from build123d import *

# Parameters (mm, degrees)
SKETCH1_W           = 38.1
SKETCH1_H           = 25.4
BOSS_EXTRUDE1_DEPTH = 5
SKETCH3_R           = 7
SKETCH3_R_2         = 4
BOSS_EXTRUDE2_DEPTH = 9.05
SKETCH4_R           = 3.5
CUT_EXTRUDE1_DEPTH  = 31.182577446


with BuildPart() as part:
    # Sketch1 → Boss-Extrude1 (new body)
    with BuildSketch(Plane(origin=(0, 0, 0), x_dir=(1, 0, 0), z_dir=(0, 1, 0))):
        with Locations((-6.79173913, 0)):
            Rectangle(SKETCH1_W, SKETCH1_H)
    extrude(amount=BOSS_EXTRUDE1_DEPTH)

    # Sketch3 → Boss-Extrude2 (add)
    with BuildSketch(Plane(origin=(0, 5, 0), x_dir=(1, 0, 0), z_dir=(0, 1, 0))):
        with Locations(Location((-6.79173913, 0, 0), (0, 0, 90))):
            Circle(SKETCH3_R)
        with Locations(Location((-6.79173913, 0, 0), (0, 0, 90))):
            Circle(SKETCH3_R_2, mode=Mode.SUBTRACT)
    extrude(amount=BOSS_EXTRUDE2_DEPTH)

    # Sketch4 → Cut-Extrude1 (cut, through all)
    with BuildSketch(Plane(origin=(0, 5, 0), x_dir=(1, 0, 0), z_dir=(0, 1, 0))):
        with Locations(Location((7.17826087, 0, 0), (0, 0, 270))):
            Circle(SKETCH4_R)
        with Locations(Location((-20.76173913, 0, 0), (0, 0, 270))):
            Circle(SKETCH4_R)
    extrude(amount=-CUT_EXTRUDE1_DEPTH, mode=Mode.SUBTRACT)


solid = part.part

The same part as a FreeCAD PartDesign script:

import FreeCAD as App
import Part
import Sketcher

V = App.Vector


def add_polygon(sketch, points):
    """Adds a closed chain of lines whose ends are joined by coincident constraints."""
    first, n = sketch.GeometryCount, len(points)
    for a, b in zip(points, points[1:] + points[:1]):
        sketch.addGeometry(Part.LineSegment(App.Vector(*a, 0), App.Vector(*b, 0)), False)
    for i in range(n):
        sketch.addConstraint(Sketcher.Constraint("Coincident", first + i, 2, first + (i + 1) % n, 1))

doc = App.newDocument("Part")
body = doc.addObject("PartDesign::Body", "Body")

sketch1 = doc.addObject("Sketcher::SketchObject", "Sketch")
body.addObject(sketch1)
sketch1.AttachmentSupport = (doc.XZ_Plane, [""])
sketch1.MapMode = "FlatFace"
add_polygon(sketch1, [(-25.841739, -12.7), (-25.841739, 12.7), (12.258261, 12.7), (12.258261, -12.7)])
sketch1.addConstraint(Sketcher.Constraint("Vertical", 0))
sketch1.addConstraint(Sketcher.Constraint("Horizontal", 1))
sketch1.addConstraint(Sketcher.Constraint("Vertical", 2))
sketch1.addConstraint(Sketcher.Constraint("Horizontal", 3))
sketch1.addConstraint(Sketcher.Constraint("DistanceX", 1, 1, 1, 2, 38.1))
sketch1.addConstraint(Sketcher.Constraint("DistanceY", 0, 1, 0, 2, 25.4))
sketch1.addConstraint(Sketcher.Constraint("DistanceY", -1, 1, 0, 2, 12.7))
sketch1.addConstraint(Sketcher.Constraint("DistanceX", 0, 2, -1, 1, 25.841739))
pad1 = doc.addObject("PartDesign::Pad", "Pad")
body.addObject(pad1)
pad1.Profile = sketch1
pad1.Length = 5
pad1.Reversed = True

sketch2 = doc.addObject("Sketcher::SketchObject", "Sketch001")
body.addObject(sketch2)
sketch2.AttachmentSupport = (doc.XZ_Plane, [""])
sketch2.MapMode = "FlatFace"
sketch2.AttachmentOffset = App.Placement(V(0, 0, -5), App.Rotation())
sketch2.addGeometry(Part.Circle(V(-6.791739, 0, 0), V(0, 0, 1), 7), False)
sketch2.addGeometry(Part.Circle(V(-6.791739, 0, 0), V(0, 0, 1), 4), False)
sketch2.addConstraint(Sketcher.Constraint("Coincident", 1, 3, 0, 3))
sketch2.addConstraint(Sketcher.Constraint("PointOnObject", 0, 3, -1))
sketch2.addConstraint(Sketcher.Constraint("Diameter", 0, 14.0))
sketch2.addConstraint(Sketcher.Constraint("Diameter", 1, 8.0))
sketch2.addConstraint(Sketcher.Constraint("DistanceX", 0, 3, -1, 1, 6.791739))
pad2 = doc.addObject("PartDesign::Pad", "Pad001")
body.addObject(pad2)
pad2.Profile = sketch2
pad2.Length = 9.05
pad2.Reversed = True

sketch3 = doc.addObject("Sketcher::SketchObject", "Sketch002")
body.addObject(sketch3)
sketch3.AttachmentSupport = (doc.XZ_Plane, [""])
sketch3.MapMode = "FlatFace"
sketch3.AttachmentOffset = App.Placement(V(0, 0, -5), App.Rotation())
sketch3.addGeometry(Part.Circle(V(7.178261, 0, 0), V(0, 0, 1), 3.5), False)
sketch3.addGeometry(Part.Circle(V(-20.761739, 0, 0), V(0, 0, 1), 3.5), False)
sketch3.addConstraint(Sketcher.Constraint("Equal", 0, 1))
sketch3.addConstraint(Sketcher.Constraint("PointOnObject", 0, 3, -1))
sketch3.addConstraint(Sketcher.Constraint("PointOnObject", 1, 3, -1))
sketch3.addConstraint(Sketcher.Constraint("Diameter", 0, 7.0))
sketch3.addConstraint(Sketcher.Constraint("DistanceX", 1, 3, 0, 3, 27.94))
sketch3.addConstraint(Sketcher.Constraint("DistanceX", -1, 1, 0, 3, 7.178261))
pocket1 = doc.addObject("PartDesign::Pocket", "Pocket")
body.addObject(pocket1)
pocket1.Profile = sketch3
pocket1.Type = "ThroughAll"
pocket1.Reversed = True

doc.recompute()
